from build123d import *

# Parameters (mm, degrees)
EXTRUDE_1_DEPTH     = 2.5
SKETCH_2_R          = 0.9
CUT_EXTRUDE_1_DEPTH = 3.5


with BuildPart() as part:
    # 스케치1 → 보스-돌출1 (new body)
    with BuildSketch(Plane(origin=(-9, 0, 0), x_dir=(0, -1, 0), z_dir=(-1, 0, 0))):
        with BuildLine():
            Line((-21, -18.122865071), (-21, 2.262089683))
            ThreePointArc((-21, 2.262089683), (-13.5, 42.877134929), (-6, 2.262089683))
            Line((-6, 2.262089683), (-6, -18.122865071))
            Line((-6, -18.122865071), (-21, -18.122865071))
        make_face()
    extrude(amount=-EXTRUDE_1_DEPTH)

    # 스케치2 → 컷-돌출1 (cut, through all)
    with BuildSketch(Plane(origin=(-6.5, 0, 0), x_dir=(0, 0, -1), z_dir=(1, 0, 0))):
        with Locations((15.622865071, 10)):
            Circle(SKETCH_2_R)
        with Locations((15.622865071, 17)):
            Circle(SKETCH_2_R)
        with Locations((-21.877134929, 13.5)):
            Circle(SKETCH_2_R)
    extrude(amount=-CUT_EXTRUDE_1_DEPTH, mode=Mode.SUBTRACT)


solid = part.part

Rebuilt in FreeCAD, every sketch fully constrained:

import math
import FreeCAD as App
import Part
import Sketcher

V = App.Vector
Q = App.Units.Quantity

doc = App.newDocument("Part")
body = doc.addObject("PartDesign::Body", "Body")

sketch1 = body.newObject("Sketcher::SketchObject", "Sketch")
sketch1.AttachmentSupport = (doc.getObject("YZ_Plane"), [""])
sketch1.MapMode = "FlatFace"
sketch1.AttachmentOffset = App.Placement(V(0, 0, -9), App.Rotation())
sketch1.addGeometry(Part.LineSegment(V(21, 2, 0), V(21, -18, 0)), False)
sketch1.addGeometry(Part.LineSegment(V(21, -18, 0), V(6, -18, 0)), False)
sketch1.addGeometry(Part.LineSegment(V(6, -18, 0), V(6, 2, 0)), False)
sketch1.addGeometry(Part.ArcOfCircle(Part.Circle(V(14, 22, 0), V(0, 0, 1), 21), math.radians(-69), math.radians(249)), False)
sketch1.addConstraint(Sketcher.Constraint("Coincident", 0, 2, 1, 1))
sketch1.addConstraint(Sketcher.Constraint("Coincident", 1, 2, 2, 1))
sketch1.addConstraint(Sketcher.Constraint("Coincident", 2, 2, 3, 2))
sketch1.addConstraint(Sketcher.Constraint("Coincident", 3, 1, 0, 1))
sketch1.addConstraint(Sketcher.Constraint("Vertical", 0))
sketch1.addConstraint(Sketcher.Constraint("Horizontal", 1))
sketch1.addConstraint(Sketcher.Constraint("Vertical", 2))
sketch1.addConstraint(Sketcher.Constraint("Horizontal", 2, 2, 3, 1))
sketch1.addConstraint(Sketcher.Constraint("Radius", 3, Q("21 mm")))
sketch1.addConstraint(Sketcher.Constraint("DistanceX", 1, 2, 1, 1, Q("15 mm")))
sketch1.addConstraint(Sketcher.Constraint("DistanceX", -1, 1, 0, 2, Q("21 mm")))
sketch1.addConstraint(Sketcher.Constraint("DistanceY", 0, 2, 3, 3, Q("40 mm")))
sketch1.addConstraint(Sketcher.Constraint("DistanceY", -1, 1, 2, 2, Q("2.26209 mm")))
pad1 = body.newObject("PartDesign::Pad", "Pad")
pad1.Profile = sketch1
pad1.Length = 2.5

sketch2 = body.newObject("Sketcher::SketchObject", "Sketch001")
sketch2.AttachmentSupport = (doc.getObject("YZ_Plane"), [""])
sketch2.MapMode = "FlatFace"
sketch2.AttachmentOffset = App.Placement(V(0, 0, -6.5), App.Rotation())
sketch2.addGeometry(Part.Circle(V(10, -15.6, 0), V(0, 0, 1), 0.9), False)
sketch2.addGeometry(Part.Circle(V(17, -15.6, 0), V(0, 0, 1), 0.9), False)
sketch2.addGeometry(Part.Circle(V(13.5, 21.9, 0), V(0, 0, 1), 0.9), False)
sketch2.addConstraint(Sketcher.Constraint("Equal", 0, 1))
sketch2.addConstraint(Sketcher.Constraint("Equal", 1, 2))
sketch2.addConstraint(Sketcher.Constraint("Horizontal", 0, 3, 1, 3))
sketch2.addConstraint(Sketcher.Constraint("Diameter", 0, Q("1.8 mm")))
sketch2.addConstraint(Sketcher.Constraint("DistanceX", -1, 1, 0, 3, Q("10 mm")))
sketch2.addConstraint(Sketcher.Constraint("DistanceX", -1, 1, 1, 3, Q("17 mm")))
sketch2.addConstraint(Sketcher.Constraint("DistanceX", -1, 1, 2, 3, Q("13.5 mm")))
sketch2.addConstraint(Sketcher.Constraint("DistanceY", 0, 3, 2, 3, Q("37.5 mm")))
sketch2.addConstraint(Sketcher.Constraint("DistanceY", 0, 3, -1, 1, Q("15.622865 mm")))
pocket1 = body.newObject("PartDesign::Pocket", "Pocket")
pocket1.Profile = sketch2
pocket1.Type = "ThroughAll"

doc.recompute()
